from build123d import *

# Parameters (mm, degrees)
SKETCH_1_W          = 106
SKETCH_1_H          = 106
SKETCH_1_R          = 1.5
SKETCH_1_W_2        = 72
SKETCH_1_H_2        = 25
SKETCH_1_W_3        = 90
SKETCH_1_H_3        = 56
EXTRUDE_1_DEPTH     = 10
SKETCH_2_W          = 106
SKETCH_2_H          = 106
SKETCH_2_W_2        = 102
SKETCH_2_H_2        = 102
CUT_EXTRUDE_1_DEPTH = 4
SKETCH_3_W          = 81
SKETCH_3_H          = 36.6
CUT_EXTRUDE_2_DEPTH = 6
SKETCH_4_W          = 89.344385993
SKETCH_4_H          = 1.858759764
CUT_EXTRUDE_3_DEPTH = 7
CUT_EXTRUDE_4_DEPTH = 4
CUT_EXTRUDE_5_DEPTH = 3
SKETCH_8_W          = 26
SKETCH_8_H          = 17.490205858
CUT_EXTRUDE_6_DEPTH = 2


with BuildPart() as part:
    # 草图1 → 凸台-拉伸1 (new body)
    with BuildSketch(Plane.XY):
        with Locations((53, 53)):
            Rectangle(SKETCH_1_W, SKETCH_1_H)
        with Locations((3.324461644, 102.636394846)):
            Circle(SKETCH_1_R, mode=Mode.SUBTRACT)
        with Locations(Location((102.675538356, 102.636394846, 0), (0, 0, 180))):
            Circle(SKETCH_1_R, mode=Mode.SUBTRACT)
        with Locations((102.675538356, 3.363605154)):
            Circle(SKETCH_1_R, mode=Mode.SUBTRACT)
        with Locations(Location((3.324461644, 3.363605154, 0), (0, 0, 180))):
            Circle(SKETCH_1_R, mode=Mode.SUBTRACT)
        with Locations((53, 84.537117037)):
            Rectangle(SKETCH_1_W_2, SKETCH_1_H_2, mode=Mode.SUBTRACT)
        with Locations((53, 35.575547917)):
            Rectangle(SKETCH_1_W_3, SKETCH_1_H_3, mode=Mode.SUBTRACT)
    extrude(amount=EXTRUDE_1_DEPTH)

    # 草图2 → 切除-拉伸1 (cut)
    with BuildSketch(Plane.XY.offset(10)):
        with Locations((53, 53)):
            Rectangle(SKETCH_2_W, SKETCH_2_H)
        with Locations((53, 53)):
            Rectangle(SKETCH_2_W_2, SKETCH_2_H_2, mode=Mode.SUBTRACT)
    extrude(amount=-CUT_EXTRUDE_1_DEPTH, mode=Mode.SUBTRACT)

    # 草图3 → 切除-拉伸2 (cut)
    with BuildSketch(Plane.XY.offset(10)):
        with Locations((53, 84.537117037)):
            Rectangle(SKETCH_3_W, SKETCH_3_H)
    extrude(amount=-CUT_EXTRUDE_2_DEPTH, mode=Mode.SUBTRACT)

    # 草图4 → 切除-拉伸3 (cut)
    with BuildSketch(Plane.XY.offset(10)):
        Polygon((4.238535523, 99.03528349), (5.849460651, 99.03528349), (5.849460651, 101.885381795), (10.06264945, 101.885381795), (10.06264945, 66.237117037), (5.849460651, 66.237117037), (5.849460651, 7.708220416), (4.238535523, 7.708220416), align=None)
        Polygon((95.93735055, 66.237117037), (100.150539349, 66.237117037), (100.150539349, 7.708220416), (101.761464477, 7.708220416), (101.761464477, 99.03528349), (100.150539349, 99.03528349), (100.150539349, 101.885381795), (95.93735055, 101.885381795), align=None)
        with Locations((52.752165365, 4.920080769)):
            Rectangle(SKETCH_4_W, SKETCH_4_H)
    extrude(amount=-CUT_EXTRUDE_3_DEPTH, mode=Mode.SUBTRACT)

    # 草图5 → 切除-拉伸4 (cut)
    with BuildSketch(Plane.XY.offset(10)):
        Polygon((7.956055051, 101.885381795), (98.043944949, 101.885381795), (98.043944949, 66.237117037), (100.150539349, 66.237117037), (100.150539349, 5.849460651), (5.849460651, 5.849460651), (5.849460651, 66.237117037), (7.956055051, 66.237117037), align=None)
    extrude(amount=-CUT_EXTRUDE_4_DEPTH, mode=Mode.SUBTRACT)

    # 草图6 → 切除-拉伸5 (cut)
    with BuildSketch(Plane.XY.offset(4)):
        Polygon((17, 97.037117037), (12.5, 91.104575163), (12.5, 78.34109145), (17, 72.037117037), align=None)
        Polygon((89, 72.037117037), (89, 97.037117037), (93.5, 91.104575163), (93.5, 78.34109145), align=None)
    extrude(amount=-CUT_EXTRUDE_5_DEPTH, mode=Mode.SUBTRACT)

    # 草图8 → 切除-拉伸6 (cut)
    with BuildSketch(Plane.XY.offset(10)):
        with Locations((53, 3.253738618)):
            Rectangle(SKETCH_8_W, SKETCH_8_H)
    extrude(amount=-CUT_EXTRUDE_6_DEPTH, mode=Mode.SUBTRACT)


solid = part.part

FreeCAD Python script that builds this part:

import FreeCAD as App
import Part
import Sketcher
from FreeCAD import Vector


def add_polygon(sketch, points):
    """Adds a closed chain of lines whose ends are joined by coincident constraints."""
    first, n = sketch.GeometryCount, len(points)
    for a, b in zip(points, points[1:] + points[:1]):
        sketch.addGeometry(Part.LineSegment(App.Vector(*a, 0), App.Vector(*b, 0)), False)
    for i in range(n):
        sketch.addConstraint(Sketcher.Constraint("Coincident", first + i, 2, first + (i + 1) % n, 1))

doc = App.newDocument("Part")
body = doc.addObject("PartDesign::Body", "Body")

sketch1 = doc.addObject("Sketcher::SketchObject", "Sketch")
body.addObject(sketch1)
sketch1.AttachmentSupport = (doc.XY_Plane, [""])
sketch1.MapMode = "FlatFace"
add_polygon(sketch1, [(0, 106), (0, 0), (106, 0), (106, 106)])
sketch1.addGeometry(Part.Circle(Vector(3.3, 3.4, 0), Vector(0, 0, 1), 1.5), False)
add_polygon(sketch1, [(98, 7.6), (8, 7.6), (8, 63.6), (98, 63.6)])
sketch1.addGeometry(Part.Circle(Vector(102.7, 3.4, 0), Vector(0, 0, 1), 1.5), False)
sketch1.addGeometry(Part.Circle(Vector(3.3, 102.6, 0), Vector(0, 0, 1), 1.5), False)
add_polygon(sketch1, [(89, 72), (17, 72), (17, 97), (89, 97)])
sketch1.addGeometry(Part.Circle(Vector(102.7, 102.6, 0), Vector(0, 0, 1), 1.5), False)
sketch1.addConstraint([
    Sketcher.Constraint("Vertical", 0),
    Sketcher.Constraint("Horizontal", 1),
    Sketcher.Constraint("Vertical", 2),
    Sketcher.Constraint("Horizontal", 3),
    Sketcher.Constraint("Horizontal", 5),
    Sketcher.Constraint("Vertical", 6),
    Sketcher.Constraint("Horizontal", 7),
    Sketcher.Constraint("Vertical", 8),
    Sketcher.Constraint("Horizontal", 11),
    Sketcher.Constraint("Vertical", 12),
    Sketcher.Constraint("Horizontal", 13),
    Sketcher.Constraint("Vertical", 14),
    Sketcher.Constraint("Coincident", 0, 2, -1, 1),
    Sketcher.Constraint("Equal", 4, 9),
    Sketcher.Constraint("Equal", 9, 10),
    Sketcher.Constraint("Equal", 10, 15),
    Sketcher.Constraint("Horizontal", 4, 3, 9, 3),
    Sketcher.Constraint("Horizontal", 10, 3, 15, 3),
    Sketcher.Constraint("Vertical", 4, 3, 10, 3),
    Sketcher.Constraint("Vertical", 9, 3, 15, 3),
    Sketcher.Constraint("Equal", 3, 0),
    Sketcher.Constraint("Diameter", 4, 3.0),
    Sketcher.Constraint("DistanceX", 1, 1, 1, 2, 106.0),
    Sketcher.Constraint("DistanceX", 5, 2, 5, 1, 90.0),
    Sketcher.Constraint("DistanceX", 11, 2, 11, 1, 72.0),
    Sketcher.Constraint("DistanceY", 6, 1, 6, 2, 56.0),
    Sketcher.Constraint("DistanceY", 12, 1, 12, 2, 25.0),
    Sketcher.Constraint("DistanceX", -1, 1, 5, 2, 8.0),
    Sketcher.Constraint("DistanceX", -1, 1, 11, 2, 17.0),
    Sketcher.Constraint("DistanceX", -1, 1, 4, 3, 3.324462),
    Sketcher.Constraint("DistanceX", -1, 1, 9, 3, 102.675538),
    Sketcher.Constraint("DistanceY", 4, 3, 10, 3, 99.27279),
    Sketcher.Constraint("DistanceY", 6, 2, 11, 2, 8.461569),
    Sketcher.Constraint("DistanceY", 4, 3, 11, 2, 68.673512),
    Sketcher.Constraint("DistanceY", -1, 1, 4, 3, 3.363605),
])
pad1 = doc.addObject("PartDesign::Pad", "Pad")
body.addObject(pad1)
pad1.Profile = sketch1
pad1.Length = 10

sketch2 = doc.addObject("Sketcher::SketchObject", "Sketch001")
body.addObject(sketch2)
sketch2.AttachmentSupport = (doc.XY_Plane, [""])
sketch2.MapMode = "FlatFace"
sketch2.AttachmentOffset = App.Placement(Vector(0, 0, 10), App.Rotation())
add_polygon(sketch2, [(0, 106), (0, 0), (106, 0), (106, 106)])
add_polygon(sketch2, [(104, 2), (2, 2), (2, 104), (104, 104)])
sketch2.addConstraint([
    Sketcher.Constraint("Vertical", 0),
    Sketcher.Constraint("Horizontal", 1),
    Sketcher.Constraint("Vertical", 2),
    Sketcher.Constraint("Horizontal", 3),
    Sketcher.Constraint("Horizontal", 4),
    Sketcher.Constraint("Vertical", 5),
    Sketcher.Constraint("Horizontal", 6),
    Sketcher.Constraint("Vertical", 7),
    Sketcher.Constraint("Coincident", 0, 2, -1, 1),
    Sketcher.Constraint("Equal", 3, 0),
    Sketcher.Constraint("Equal", 6, 5),
    Sketcher.Constraint("DistanceX", 1, 1, 1, 2, 106.0),
    Sketcher.Constraint("DistanceX", 4, 2, 4, 1, 102.0),
    Sketcher.Constraint("DistanceX", -1, 1, 4, 2, 2.0),
    Sketcher.Constraint("DistanceY", -1, 1, 4, 2, 2.0),
])
pocket1 = doc.addObject("PartDesign::Pocket", "Pocket")
body.addObject(pocket1)
pocket1.Profile = sketch2
pocket1.Length = 4

sketch3 = doc.addObject("Sketcher::SketchObject", "Sketch002")
body.addObject(sketch3)
sketch3.AttachmentSupport = (doc.XY_Plane, [""])
sketch3.MapMode = "FlatFace"
sketch3.AttachmentOffset = App.Placement(Vector(0, 0, 10), App.Rotation())
add_polygon(sketch3, [(12, 103), (12, 66), (94, 66), (94, 103)])
sketch3.addConstraint([
    Sketcher.Constraint("Vertical", 0),
    Sketcher.Constraint("Horizontal", 1),
    Sketcher.Constraint("Vertical", 2),
    Sketcher.Constraint("Horizontal", 3),
    Sketcher.Constraint("DistanceX", 1, 1, 1, 2, 81.0),
    Sketcher.Constraint("DistanceY", 0, 2, 0, 1, 36.6),
    Sketcher.Constraint("DistanceX", -1, 1, 0, 2, 12.5),
    Sketcher.Constraint("DistanceY", -1, 1, 0, 2, 66.237117),
])
pocket2 = doc.addObject("PartDesign::Pocket", "Pocket001")
body.addObject(pocket2)
pocket2.Profile = sketch3
pocket2.Length = 6

sketch4 = doc.addObject("Sketcher::SketchObject", "Sketch003")
body.addObject(sketch4)
sketch4.AttachmentSupport = (doc.XY_Plane, [""])
sketch4.MapMode = "FlatFace"
sketch4.AttachmentOffset = App.Placement(Vector(0, 0, 10), App.Rotation())
add_polygon(sketch4, [(5.8, 99), (4.2, 99), (4.2, 7.7), (5.8, 7.7), (5.8, 66.2), (10.1, 66.2), (10.1, 101.9), (5.8, 101.9)])
add_polygon(sketch4, [(95.9, 66.2), (100.2, 66.2), (100.2, 7.7), (101.8, 7.7), (101.8, 99), (100.2, 99), (100.2, 101.9), (95.9, 101.9)])
add_polygon(sketch4, [(8.1, 5.8), (8.1, 4), (97.4, 4), (97.4, 5.8)])
sketch4.addConstraint([
    Sketcher.Constraint("Horizontal", 0),
    Sketcher.Constraint("Vertical", 1),
    Sketcher.Constraint("Horizontal", 2),
    Sketcher.Constraint("Vertical", 3),
    Sketcher.Constraint("Horizontal", 4),
    Sketcher.Constraint("Vertical", 5),
    Sketcher.Constraint("Horizontal", 6),
    Sketcher.Constraint("Vertical", 7),
    Sketcher.Constraint("Horizontal", 8),
    Sketcher.Constraint("Vertical", 9),
    Sketcher.Constraint("Horizontal", 10),
    Sketcher.Constraint("Vertical", 11),
    Sketcher.Constraint("Horizontal", 12),
    Sketcher.Constraint("Vertical", 13),
    Sketcher.Constraint("Horizontal", 14),
    Sketcher.Constraint("Vertical", 15),
    Sketcher.Constraint("Vertical", 16),
    Sketcher.Constraint("Horizontal", 17),
    Sketcher.Constraint("Vertical", 18),
    Sketcher.Constraint("Horizontal", 19),
    Sketcher.Constraint("Horizontal", 4, 2, 8, 2),
    Sketcher.Constraint("Horizontal", 2, 2, 9, 2),
    Sketcher.Constraint("Horizontal", 7, 2, 11, 2),
    Sketcher.Constraint("Horizontal", 6, 2, 13, 2),
    Sketcher.Constraint("Vertical", 3, 2, 6, 2),
    Sketcher.Constraint("Vertical", 9, 2, 12, 2),
    Sketcher.Constraint("Equal", 6, 8),
    Sketcher.Constraint("Equal", 2, 10),
    Sketcher.Constraint("DistanceY", 7, 2, 7, 1, 2.850098),
    Sketcher.Constraint("DistanceX", 4, 1, 4, 2, 4.213189),
    Sketcher.Constraint("DistanceY", 16, 2, 16, 1, 1.85876),
    Sketcher.Constraint("DistanceY", -1, 1, 16, 2, 3.990701),
    Sketcher.Constraint("DistanceX", 5, 2, 14, 2, 85.874701),
    Sketcher.Constraint("DistanceX", 0, 2, 0, 1, 1.610925),
    Sketcher.Constraint("DistanceX", 17, 1, 17, 2, 89.344386),
    Sketcher.Constraint("DistanceY", 1, 2, 1, 1, 91.327063),
    Sketcher.Constraint("DistanceY", 3, 1, 3, 2, 58.528897),
    Sketcher.Constraint("DistanceY", -1, 1, 1, 2, 7.70822),
    Sketcher.Constraint("DistanceX", -1, 1, 2, 2, 5.849461),
    Sketcher.Constraint("DistanceX", -1, 1, 17, 2, 97.424358),
])
pocket3 = doc.addObject("PartDesign::Pocket", "Pocket002")
body.addObject(pocket3)
pocket3.Profile = sketch4
pocket3.Length = 7

sketch5 = doc.addObject("Sketcher::SketchObject", "Sketch004")
body.addObject(sketch5)
sketch5.AttachmentSupport = (doc.XY_Plane, [""])
sketch5.MapMode = "FlatFace"
sketch5.AttachmentOffset = App.Placement(Vector(0, 0, 10), App.Rotation())
add_polygon(sketch5, [(98, 101.9), (8, 101.9), (8, 66.2), (5.8, 66.2), (5.8, 5.8), (100.2, 5.8), (100.2, 66.2), (98, 66.2)])
sketch5.addConstraint([
    Sketcher.Constraint("Horizontal", 0),
    Sketcher.Constraint("Vertical", 1),
    Sketcher.Constraint("Horizontal", 2),
    Sketcher.Constraint("Vertical", 3),
    Sketcher.Constraint("Horizontal", 4),
    Sketcher.Constraint("Vertical", 5),
    Sketcher.Constraint("Horizontal", 6),
    Sketcher.Constraint("Vertical", 7),
    Sketcher.Constraint("Horizontal", 2, 2, 5, 2),
    Sketcher.Constraint("Equal", 2, 6),
    Sketcher.Constraint("DistanceX", 0, 2, 0, 1, 90.08789),
    Sketcher.Constraint("DistanceX", 4, 1, 4, 2, 94.301079),
    Sketcher.Constraint("DistanceY", 1, 2, 1, 1, 35.648265),
    Sketcher.Constraint("DistanceY", 3, 2, 3, 1, 60.387656),
    Sketcher.Constraint("DistanceY", -1, 1, 0, 2, 101.885382),
    Sketcher.Constraint("DistanceX", -1, 1, 2, 2, 5.849461),
])
pocket4 = doc.addObject("PartDesign::Pocket", "Pocket003")
body.addObject(pocket4)
pocket4.Profile = sketch5
pocket4.Length = 4

sketch6 = doc.addObject("Sketcher::SketchObject", "Sketch005")
body.addObject(sketch6)
sketch6.AttachmentSupport = (doc.XY_Plane, [""])
sketch6.MapMode = "FlatFace"
sketch6.AttachmentOffset = App.Placement(Vector(0, 0, 4), App.Rotation())
add_polygon(sketch6, [(17, 97), (12, 91), (12, 78), (17, 72)])
add_polygon(sketch6, [(89, 97), (89, 72), (94, 78), (94, 91)])
sketch6.addConstraint([
    Sketcher.Constraint("Vertical", 1),
    Sketcher.Constraint("Vertical", 3),
    Sketcher.Constraint("Vertical", 4),
    Sketcher.Constraint("Vertical", 6),
    Sketcher.Constraint("Horizontal", 2, 2, 4, 2),
    Sketcher.Constraint("Horizontal", 1, 2, 5, 2),
    Sketcher.Constraint("Horizontal", 0, 2, 6, 2),
    Sketcher.Constraint("Horizontal", 3, 2, 7, 2),
    Sketcher.Constraint("Equal", 2, 5),
    Sketcher.Constraint("DistanceY", 3, 1, 3, 2, 25.0),
    Sketcher.Constraint("DistanceX", -1, 1, 2, 2, 17.0),
    Sketcher.Constraint("DistanceX", -1, 1, 4, 2, 89.0),
    Sketcher.Constraint("DistanceX", 1, 2, 5, 2, 81.0),
    Sketcher.Constraint("DistanceY", 1, 2, 1, 1, 12.763484),
    Sketcher.Constraint("DistanceY", -1, 1, 1, 2, 78.341091),
    Sketcher.Constraint("DistanceY", 2, 2, 0, 2, 19.067458),
])
pocket5 = doc.addObject("PartDesign::Pocket", "Pocket004")
body.addObject(pocket5)
pocket5.Profile = sketch6
pocket5.Length = 3

sketch7 = doc.addObject("Sketcher::SketchObject", "Sketch006")
body.addObject(sketch7)
sketch7.AttachmentSupport = (doc.XY_Plane, [""])
sketch7.MapMode = "FlatFace"
sketch7.AttachmentOffset = App.Placement(Vector(0, 0, 10), App.Rotation())
add_polygon(sketch7, [(40, 12), (40, -5), (66, -5), (66, 12)])
sketch7.addConstraint([
    Sketcher.Constraint("Vertical", 0),
    Sketcher.Constraint("Horizontal", 1),
    Sketcher.Constraint("Vertical", 2),
    Sketcher.Constraint("Horizontal", 3),
    Sketcher.Constraint("DistanceX", 1, 1, 1, 2, 26.0),
    Sketcher.Constraint("DistanceX", -1, 1, 0, 2, 40.0),
    Sketcher.Constraint("DistanceY", 0, 2, 0, 1, 17.490206),
    Sketcher.Constraint("DistanceY", -1, 1, 2, 2, 11.998842),
])
pocket6 = doc.addObject("PartDesign::Pocket", "Pocket005")
body.addObject(pocket6)
pocket6.Profile = sketch7
pocket6.Length = 2

doc.recompute()
